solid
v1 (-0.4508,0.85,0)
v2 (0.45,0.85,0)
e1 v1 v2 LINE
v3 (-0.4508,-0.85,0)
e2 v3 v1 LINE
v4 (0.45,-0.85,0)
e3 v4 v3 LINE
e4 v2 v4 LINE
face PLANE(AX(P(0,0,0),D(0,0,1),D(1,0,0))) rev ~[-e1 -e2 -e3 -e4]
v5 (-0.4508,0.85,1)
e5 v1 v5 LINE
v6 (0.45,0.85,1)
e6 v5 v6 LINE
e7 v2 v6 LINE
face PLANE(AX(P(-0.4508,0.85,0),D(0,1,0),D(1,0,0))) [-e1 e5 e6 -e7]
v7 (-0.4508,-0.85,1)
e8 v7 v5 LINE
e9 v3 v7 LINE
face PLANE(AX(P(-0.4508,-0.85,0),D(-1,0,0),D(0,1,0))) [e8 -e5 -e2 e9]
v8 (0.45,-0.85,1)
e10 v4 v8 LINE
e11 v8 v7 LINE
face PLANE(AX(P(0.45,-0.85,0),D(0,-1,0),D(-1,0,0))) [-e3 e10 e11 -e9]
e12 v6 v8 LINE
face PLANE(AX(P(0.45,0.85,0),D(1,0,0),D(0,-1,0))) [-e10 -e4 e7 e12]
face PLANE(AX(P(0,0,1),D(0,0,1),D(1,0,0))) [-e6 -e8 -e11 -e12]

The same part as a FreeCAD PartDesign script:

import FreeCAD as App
import Part
import Sketcher
from FreeCAD import Vector

doc = App.newDocument("Part")
body = doc.addObject("PartDesign::Body", "Body")

# Sketch on XY plane
sketch1 = body.newObject("Sketcher::SketchObject", "Sketch")
sketch1.AttachmentSupport = (doc.getObject("XY_Plane"), [""])
sketch1.MapMode = "FlatFace"
sketch1.addGeometry([
    Part.LineSegment(Vector(0.5, 0.8, 0), Vector(-0.5, 0.8, 0)),
    Part.LineSegment(Vector(-0.5, 0.8, 0), Vector(-0.5, -0.8, 0)),
    Part.LineSegment(Vector(-0.5, -0.8, 0), Vector(0.5, -0.8, 0)),
    Part.LineSegment(Vector(0.5, -0.8, 0), Vector(0.5, 0.8, 0)),
], False)
sketch1.addConstraint([
    Sketcher.Constraint("Coincident", 0, 2, 1, 1),
    Sketcher.Constraint("Coincident", 1, 2, 2, 1),
    Sketcher.Constraint("Coincident", 2, 2, 3, 1),
    Sketcher.Constraint("Coincident", 3, 2, 0, 1),
    Sketcher.Constraint("Horizontal", 0),
    Sketcher.Constraint("Vertical", 1),
    Sketcher.Constraint("Horizontal", 2),
    Sketcher.Constraint("Vertical", 3),
    Sketcher.Constraint("DistanceY", 1, 2, 1, 1, 1.7),
    Sketcher.Constraint("DistanceY", -1, 1, 0, 2, 0.85),
    Sketcher.Constraint("DistanceX", -1, 1, 2, 2, 0.45),
    Sketcher.Constraint("DistanceX", 0, 2, 0, 1, 0.9008),
])
pad1 = body.newObject("PartDesign::Pad", "Pad")
pad1.Profile = sketch1
pad1.Length = 1

doc.recompute()
